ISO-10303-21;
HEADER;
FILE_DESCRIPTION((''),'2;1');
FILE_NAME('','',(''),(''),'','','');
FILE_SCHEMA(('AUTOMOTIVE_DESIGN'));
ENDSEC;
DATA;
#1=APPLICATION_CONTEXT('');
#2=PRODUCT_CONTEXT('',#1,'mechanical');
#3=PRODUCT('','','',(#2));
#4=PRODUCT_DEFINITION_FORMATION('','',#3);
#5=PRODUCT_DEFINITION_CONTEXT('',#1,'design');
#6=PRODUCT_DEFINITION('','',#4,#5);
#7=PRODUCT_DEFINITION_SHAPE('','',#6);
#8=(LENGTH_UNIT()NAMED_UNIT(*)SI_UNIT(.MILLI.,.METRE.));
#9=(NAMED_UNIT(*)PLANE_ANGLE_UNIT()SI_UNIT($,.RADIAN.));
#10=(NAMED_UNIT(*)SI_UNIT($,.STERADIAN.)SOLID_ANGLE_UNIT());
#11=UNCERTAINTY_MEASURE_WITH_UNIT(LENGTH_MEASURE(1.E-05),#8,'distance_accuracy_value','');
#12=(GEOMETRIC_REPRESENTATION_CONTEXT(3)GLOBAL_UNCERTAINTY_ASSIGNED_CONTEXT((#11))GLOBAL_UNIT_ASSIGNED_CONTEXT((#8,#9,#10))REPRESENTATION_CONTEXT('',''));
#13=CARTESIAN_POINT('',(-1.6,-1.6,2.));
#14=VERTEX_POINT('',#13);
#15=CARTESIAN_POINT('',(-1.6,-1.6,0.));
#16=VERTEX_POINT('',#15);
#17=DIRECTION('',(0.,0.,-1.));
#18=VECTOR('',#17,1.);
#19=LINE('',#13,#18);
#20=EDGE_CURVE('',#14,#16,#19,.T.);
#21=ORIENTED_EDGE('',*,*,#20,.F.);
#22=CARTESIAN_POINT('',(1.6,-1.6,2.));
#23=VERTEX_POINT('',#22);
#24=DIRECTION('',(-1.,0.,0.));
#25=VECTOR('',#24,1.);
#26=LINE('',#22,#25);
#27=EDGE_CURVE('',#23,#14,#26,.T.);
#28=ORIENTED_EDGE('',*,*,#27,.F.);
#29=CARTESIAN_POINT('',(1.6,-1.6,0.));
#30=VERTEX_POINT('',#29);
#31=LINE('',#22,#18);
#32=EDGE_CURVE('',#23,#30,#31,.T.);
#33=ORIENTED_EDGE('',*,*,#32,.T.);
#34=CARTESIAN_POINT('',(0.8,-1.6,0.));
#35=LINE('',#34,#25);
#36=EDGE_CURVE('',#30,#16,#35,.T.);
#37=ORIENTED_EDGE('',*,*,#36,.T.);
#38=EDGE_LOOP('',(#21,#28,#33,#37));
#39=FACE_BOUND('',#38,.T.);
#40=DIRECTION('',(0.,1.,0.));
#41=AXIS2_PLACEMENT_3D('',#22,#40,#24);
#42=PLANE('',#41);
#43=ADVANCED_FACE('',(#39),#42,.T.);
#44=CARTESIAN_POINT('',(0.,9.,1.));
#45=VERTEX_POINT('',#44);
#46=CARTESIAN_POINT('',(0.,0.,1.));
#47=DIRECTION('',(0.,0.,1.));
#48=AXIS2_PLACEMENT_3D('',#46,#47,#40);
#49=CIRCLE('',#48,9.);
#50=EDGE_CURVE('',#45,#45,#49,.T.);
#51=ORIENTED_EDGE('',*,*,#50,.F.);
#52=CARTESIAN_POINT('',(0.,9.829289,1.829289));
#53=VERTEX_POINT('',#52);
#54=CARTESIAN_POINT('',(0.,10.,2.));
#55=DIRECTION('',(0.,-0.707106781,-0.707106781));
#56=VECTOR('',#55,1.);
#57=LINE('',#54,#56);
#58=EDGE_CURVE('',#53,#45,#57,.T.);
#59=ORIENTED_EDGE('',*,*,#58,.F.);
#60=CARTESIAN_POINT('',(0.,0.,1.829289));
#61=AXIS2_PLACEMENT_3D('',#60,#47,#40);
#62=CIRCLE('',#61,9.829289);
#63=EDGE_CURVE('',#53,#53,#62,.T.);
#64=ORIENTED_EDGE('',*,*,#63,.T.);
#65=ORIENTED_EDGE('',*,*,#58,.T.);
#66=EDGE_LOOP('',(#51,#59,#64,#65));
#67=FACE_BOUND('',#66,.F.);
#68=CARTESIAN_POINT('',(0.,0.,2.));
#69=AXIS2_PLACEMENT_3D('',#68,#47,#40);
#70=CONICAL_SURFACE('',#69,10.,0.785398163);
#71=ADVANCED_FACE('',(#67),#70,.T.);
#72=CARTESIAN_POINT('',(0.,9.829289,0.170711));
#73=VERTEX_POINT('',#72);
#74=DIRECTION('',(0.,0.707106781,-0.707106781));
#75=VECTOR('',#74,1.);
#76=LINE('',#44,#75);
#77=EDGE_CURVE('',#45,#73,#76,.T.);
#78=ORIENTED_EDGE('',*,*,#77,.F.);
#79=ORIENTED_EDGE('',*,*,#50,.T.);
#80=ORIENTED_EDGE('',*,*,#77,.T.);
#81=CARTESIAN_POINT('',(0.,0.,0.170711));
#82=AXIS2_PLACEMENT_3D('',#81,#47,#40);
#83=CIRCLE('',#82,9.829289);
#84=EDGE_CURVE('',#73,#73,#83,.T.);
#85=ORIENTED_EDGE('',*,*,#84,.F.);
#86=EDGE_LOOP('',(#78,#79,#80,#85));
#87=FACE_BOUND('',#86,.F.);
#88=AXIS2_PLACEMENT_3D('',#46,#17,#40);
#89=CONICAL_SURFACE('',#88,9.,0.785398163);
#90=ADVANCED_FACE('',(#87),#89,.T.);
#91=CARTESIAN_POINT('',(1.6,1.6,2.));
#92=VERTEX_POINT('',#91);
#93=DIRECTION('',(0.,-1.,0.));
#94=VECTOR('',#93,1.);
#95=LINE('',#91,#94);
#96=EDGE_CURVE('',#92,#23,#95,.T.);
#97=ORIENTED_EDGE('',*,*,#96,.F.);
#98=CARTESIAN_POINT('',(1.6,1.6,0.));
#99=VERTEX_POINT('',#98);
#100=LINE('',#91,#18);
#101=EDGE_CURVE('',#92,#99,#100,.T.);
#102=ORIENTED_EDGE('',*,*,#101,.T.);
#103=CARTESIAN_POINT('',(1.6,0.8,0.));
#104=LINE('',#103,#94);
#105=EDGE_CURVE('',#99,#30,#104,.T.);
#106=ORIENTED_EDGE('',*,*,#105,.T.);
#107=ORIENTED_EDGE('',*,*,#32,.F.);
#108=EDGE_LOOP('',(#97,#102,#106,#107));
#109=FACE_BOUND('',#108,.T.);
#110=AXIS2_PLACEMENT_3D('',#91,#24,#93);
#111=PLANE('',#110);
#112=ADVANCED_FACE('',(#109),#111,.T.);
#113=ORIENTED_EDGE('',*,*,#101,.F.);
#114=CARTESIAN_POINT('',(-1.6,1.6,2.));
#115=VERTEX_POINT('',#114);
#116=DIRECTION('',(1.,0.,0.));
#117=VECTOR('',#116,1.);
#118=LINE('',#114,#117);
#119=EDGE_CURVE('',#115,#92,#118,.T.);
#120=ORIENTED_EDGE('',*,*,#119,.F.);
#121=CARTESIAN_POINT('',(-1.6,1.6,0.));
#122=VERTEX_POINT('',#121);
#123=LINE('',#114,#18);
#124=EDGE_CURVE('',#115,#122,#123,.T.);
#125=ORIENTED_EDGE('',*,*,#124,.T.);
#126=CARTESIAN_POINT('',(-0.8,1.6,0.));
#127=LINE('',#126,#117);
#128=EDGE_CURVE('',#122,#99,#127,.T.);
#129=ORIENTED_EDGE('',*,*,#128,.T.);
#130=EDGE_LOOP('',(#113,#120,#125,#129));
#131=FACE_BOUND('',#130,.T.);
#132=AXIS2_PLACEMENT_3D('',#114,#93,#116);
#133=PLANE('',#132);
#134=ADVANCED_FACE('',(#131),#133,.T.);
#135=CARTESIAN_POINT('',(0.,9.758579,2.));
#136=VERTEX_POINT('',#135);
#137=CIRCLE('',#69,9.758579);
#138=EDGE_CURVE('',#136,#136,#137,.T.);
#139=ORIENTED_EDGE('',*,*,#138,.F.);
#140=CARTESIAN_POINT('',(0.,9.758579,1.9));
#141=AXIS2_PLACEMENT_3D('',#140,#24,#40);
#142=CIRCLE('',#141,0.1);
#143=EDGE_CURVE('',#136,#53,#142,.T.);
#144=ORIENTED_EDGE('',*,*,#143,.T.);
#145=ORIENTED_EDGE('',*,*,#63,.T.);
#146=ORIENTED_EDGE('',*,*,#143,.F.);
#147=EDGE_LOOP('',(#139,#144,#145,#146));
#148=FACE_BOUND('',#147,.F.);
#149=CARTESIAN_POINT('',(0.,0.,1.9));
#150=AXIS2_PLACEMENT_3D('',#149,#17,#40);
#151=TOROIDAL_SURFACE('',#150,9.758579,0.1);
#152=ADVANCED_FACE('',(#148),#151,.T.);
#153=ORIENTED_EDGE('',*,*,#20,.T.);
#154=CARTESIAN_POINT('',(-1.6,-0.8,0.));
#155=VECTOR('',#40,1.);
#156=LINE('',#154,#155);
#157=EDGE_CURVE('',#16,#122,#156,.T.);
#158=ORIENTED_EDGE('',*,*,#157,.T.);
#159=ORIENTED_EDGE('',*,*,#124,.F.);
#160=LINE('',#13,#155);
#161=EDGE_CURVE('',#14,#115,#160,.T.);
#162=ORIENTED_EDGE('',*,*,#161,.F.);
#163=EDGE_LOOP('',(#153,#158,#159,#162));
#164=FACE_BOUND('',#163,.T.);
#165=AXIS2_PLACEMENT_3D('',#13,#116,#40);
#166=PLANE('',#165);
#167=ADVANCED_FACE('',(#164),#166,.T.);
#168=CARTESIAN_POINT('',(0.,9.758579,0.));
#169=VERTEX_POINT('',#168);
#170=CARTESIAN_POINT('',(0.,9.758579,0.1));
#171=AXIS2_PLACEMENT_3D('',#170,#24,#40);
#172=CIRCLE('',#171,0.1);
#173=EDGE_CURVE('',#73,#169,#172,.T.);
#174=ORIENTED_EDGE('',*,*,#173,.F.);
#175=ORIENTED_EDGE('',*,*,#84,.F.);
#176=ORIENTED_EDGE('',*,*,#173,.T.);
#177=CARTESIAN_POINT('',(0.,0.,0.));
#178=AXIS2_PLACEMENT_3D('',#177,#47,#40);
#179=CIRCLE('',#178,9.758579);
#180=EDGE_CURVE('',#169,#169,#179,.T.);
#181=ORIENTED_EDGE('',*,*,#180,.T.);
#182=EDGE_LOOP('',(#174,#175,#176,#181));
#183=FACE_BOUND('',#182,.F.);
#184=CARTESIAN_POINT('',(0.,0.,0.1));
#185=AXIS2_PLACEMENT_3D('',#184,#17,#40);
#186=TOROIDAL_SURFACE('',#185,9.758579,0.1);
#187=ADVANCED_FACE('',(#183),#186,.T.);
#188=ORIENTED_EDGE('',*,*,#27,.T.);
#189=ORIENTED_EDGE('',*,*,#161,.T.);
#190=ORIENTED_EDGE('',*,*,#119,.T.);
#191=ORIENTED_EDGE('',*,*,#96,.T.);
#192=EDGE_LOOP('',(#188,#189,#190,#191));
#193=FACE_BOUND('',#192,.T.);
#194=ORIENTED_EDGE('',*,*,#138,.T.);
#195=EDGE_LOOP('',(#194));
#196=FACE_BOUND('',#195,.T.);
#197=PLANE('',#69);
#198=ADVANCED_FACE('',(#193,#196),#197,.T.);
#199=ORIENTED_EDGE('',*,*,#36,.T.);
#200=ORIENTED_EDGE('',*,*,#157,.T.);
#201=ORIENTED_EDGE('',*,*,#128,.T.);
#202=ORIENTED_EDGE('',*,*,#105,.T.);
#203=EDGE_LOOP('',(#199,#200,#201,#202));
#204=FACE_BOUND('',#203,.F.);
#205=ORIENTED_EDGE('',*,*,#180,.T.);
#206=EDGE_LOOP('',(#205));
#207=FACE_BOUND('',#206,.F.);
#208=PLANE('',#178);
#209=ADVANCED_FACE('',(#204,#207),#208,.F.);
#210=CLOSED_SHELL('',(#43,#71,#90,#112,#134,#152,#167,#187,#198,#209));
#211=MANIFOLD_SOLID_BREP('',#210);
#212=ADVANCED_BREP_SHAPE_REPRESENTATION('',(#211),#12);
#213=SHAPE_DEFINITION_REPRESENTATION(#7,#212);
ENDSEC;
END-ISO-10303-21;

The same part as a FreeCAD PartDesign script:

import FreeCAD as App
import Part
import Sketcher


def edges_at(feature, points):
    """Names of the edges that pass closest to the given points."""
    edges = feature.Shape.Edges
    near = lambda p: min(range(len(edges)), key=lambda i: edges[i].distToShape(Part.Vertex(*p))[0])
    return sorted({f"Edge{near(p) + 1}" for p in points})


def add_polygon(sketch, points):
    """Adds a closed chain of lines whose ends are joined by coincident constraints."""
    first, n = sketch.GeometryCount, len(points)
    for a, b in zip(points, points[1:] + points[:1]):
        sketch.addGeometry(Part.LineSegment(App.Vector(*a, 0), App.Vector(*b, 0)), False)
    for i in range(n):
        sketch.addConstraint(Sketcher.Constraint("Coincident", first + i, 2, first + (i + 1) % n, 1))

doc = App.newDocument("Part")
body = doc.addObject("PartDesign::Body", "Body")

# Sketch on YZ plane
sketch1 = doc.addObject("Sketcher::SketchObject", "Sketch")
body.addObject(sketch1)
sketch1.AttachmentSupport = (doc.YZ_Plane, [""])
sketch1.MapMode = "FlatFace"
add_polygon(sketch1, [(0, 2), (0, 0), (10, 0), (9, 1), (10, 2)])  # lines 0-4
sketch1.addConstraint([
    Sketcher.Constraint("Vertical", 0),
    Sketcher.Constraint("Horizontal", 1),
    Sketcher.Constraint("Horizontal", 4),
    Sketcher.Constraint("Coincident", 0, 2, -1, 1),
    Sketcher.Constraint("Perpendicular", 2, 3),
    Sketcher.Constraint("Vertical", 1, 2, 3, 2),
    Sketcher.Constraint("Equal", 2, 3),
    Sketcher.Constraint("DistanceX", 1, 1, 1, 2, 10.0),
    Sketcher.Constraint("DistanceY", 0, 2, 0, 1, 2.0),
])
revolution = doc.addObject("PartDesign::Revolution", "Revolution")
body.addObject(revolution)
revolution.Profile = sketch1
revolution.ReferenceAxis = (sketch1, ["V_Axis"])
revolution.Angle = 360
doc.recompute()

fillet = doc.addObject("PartDesign::Fillet", "Fillet")
body.addObject(fillet)
fillet.Base = (revolution, edges_at(revolution, [(0, -10, 2), (0, -10, 0)]))
fillet.Radius = 0.1

# Sketch on XY plane
sketch2 = doc.addObject("Sketcher::SketchObject", "Sketch001")
body.addObject(sketch2)
sketch2.AttachmentSupport = (doc.XY_Plane, [""])
sketch2.MapMode = "FlatFace"
sketch2.AttachmentOffset = App.Placement(App.Vector(0, 0, 2), App.Rotation())
add_polygon(sketch2, [(1.6, 1.6), (-1.6, 1.6), (-1.6, -1.6), (1.6, -1.6)])  # lines 0-3
sketch2.addConstraint([
    Sketcher.Constraint("Horizontal", 0),
    Sketcher.Constraint("Vertical", 1),
    Sketcher.Constraint("Horizontal", 2),
    Sketcher.Constraint("Vertical", 3),
    Sketcher.Constraint("Symmetric", 0, 2, 2, 2, -1, 1),
    Sketcher.Constraint("Equal", 2, 1),
    Sketcher.Constraint("DistanceX", 0, 2, 0, 1, 3.2),
])
pocket1 = doc.addObject("PartDesign::Pocket", "Pocket")
body.addObject(pocket1)
pocket1.Profile = sketch2
pocket1.Type = "ThroughAll"

doc.recompute()
